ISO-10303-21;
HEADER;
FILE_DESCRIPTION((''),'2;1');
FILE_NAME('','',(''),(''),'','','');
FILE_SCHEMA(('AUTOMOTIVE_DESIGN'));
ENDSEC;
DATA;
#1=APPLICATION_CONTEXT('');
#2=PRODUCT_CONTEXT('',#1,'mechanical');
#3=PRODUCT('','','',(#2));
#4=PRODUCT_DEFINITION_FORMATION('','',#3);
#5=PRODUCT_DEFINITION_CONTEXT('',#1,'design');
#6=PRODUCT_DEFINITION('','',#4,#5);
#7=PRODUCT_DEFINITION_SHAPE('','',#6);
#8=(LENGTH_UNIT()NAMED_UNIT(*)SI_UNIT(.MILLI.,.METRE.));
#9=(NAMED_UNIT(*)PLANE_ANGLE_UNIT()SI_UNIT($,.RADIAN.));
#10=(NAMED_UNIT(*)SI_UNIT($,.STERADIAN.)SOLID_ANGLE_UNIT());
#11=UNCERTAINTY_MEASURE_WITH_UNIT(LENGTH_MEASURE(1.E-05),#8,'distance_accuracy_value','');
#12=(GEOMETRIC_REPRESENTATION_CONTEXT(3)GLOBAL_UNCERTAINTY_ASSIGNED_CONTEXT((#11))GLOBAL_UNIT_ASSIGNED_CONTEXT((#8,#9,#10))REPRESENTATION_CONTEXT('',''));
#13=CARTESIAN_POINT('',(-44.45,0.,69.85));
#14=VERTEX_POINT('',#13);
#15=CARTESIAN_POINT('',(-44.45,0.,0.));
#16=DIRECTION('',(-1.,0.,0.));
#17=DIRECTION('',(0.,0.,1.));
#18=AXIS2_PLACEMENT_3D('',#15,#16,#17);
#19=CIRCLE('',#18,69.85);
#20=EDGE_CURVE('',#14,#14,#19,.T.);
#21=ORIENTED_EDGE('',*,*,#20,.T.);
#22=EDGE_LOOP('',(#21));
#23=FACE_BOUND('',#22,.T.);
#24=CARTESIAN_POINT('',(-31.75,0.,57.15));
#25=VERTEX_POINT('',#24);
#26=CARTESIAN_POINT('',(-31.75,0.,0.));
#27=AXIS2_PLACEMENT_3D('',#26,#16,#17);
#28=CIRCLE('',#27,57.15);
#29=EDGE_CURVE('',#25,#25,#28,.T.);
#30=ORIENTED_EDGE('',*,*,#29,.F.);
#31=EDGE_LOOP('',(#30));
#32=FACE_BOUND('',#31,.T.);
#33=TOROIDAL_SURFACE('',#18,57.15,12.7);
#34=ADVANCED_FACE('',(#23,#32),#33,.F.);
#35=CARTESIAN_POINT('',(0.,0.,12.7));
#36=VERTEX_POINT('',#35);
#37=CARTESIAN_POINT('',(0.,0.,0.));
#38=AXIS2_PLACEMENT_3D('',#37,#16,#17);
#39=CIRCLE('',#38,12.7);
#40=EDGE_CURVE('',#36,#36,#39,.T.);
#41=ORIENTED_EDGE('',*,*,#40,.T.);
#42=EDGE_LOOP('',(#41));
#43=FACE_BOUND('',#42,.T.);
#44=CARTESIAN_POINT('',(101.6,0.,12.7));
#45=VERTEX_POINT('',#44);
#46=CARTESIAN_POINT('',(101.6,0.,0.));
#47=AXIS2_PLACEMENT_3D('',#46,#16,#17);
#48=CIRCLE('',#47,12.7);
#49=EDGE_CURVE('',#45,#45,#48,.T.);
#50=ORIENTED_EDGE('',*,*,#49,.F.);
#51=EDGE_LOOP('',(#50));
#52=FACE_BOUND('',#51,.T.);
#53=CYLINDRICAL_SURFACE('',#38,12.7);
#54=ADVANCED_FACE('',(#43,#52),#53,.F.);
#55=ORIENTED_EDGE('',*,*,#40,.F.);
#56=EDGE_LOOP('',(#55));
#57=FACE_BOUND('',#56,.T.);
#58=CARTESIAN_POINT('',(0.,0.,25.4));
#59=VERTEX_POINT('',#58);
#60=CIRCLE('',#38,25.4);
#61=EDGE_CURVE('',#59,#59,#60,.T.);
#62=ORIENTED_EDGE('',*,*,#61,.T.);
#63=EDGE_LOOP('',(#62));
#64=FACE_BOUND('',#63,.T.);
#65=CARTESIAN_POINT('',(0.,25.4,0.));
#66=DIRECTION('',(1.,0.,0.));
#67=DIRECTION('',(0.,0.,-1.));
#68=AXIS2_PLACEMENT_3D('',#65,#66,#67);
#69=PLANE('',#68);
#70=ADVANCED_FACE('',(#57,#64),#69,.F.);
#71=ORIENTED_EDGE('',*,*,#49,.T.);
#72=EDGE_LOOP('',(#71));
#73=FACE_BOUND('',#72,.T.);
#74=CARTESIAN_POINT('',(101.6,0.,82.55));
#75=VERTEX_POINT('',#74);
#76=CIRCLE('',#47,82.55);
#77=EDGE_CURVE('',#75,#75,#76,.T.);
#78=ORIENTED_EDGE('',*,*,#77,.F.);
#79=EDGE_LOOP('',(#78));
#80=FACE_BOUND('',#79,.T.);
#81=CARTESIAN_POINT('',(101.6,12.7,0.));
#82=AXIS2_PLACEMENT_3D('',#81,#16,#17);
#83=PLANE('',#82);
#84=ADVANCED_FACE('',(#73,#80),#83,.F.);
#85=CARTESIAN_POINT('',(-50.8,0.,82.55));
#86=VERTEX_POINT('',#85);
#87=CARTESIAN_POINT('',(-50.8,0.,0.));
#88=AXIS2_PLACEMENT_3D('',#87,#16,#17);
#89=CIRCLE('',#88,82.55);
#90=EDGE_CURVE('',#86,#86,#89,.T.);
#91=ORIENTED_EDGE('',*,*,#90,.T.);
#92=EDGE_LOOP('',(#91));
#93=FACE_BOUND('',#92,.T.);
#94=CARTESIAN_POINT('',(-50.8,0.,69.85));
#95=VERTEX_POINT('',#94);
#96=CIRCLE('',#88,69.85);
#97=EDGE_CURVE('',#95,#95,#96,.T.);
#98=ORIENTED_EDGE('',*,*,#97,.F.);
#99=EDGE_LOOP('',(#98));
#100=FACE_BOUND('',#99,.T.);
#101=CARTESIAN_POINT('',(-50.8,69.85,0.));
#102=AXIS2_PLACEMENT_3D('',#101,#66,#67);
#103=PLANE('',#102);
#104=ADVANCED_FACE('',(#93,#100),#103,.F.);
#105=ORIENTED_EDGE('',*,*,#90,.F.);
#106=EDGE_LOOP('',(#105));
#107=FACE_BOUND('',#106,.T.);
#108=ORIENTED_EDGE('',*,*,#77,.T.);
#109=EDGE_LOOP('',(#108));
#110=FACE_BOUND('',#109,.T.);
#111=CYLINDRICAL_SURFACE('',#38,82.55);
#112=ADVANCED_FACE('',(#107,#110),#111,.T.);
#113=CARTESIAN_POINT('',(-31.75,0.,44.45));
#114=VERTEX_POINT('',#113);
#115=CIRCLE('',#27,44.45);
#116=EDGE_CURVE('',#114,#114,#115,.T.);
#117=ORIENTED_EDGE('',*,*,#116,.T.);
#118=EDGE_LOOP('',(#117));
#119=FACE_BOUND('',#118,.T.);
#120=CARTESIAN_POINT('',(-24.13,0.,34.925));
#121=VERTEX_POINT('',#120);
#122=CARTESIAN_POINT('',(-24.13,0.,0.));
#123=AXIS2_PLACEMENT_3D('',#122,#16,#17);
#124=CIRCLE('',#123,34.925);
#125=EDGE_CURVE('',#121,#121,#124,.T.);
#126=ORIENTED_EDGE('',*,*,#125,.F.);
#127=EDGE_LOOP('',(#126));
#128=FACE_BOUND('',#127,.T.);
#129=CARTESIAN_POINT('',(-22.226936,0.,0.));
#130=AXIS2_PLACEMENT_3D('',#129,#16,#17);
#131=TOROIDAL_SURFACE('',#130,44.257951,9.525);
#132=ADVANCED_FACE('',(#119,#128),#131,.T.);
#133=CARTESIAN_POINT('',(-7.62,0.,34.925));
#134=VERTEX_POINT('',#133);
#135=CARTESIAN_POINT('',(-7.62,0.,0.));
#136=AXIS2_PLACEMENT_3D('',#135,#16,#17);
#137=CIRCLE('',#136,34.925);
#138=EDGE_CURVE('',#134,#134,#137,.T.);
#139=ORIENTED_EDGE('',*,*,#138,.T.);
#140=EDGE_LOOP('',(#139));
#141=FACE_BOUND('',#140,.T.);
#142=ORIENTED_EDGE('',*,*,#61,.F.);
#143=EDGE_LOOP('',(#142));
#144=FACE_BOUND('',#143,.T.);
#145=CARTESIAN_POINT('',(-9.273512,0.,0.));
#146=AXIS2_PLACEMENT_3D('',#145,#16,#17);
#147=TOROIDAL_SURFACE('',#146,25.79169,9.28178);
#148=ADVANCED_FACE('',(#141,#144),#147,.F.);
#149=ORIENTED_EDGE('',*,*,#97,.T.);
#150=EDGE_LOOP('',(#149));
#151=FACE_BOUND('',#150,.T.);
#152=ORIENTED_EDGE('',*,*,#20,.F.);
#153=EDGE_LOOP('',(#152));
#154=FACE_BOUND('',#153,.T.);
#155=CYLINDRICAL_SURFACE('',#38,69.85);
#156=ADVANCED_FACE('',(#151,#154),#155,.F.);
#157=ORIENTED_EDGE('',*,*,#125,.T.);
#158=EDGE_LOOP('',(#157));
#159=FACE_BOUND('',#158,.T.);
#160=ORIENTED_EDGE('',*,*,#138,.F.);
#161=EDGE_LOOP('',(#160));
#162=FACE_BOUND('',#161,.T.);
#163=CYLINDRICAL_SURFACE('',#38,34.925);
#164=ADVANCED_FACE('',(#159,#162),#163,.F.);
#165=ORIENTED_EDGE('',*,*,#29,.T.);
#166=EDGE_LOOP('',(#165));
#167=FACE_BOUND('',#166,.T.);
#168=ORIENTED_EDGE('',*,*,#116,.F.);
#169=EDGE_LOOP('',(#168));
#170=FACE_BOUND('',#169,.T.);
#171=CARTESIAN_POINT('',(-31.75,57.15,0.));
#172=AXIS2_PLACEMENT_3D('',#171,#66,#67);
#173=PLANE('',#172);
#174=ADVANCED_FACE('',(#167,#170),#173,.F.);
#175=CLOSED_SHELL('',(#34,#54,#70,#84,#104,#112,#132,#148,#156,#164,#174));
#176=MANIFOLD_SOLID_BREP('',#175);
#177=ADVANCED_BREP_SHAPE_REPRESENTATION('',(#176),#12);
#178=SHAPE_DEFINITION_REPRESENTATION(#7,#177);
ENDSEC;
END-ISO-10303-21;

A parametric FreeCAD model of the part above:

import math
import FreeCAD as App
import Part
import Sketcher

V = App.Vector
Q = App.Units.Quantity

doc = App.newDocument("Part")
body = doc.addObject("PartDesign::Body", "Body")

sketch1 = doc.addObject("Sketcher::SketchObject", "Sketch")
body.addObject(sketch1)
sketch1.AttachmentSupport = (doc.XY_Plane, [""])
sketch1.MapMode = "FlatFace"
sketch1.addGeometry([
    Part.LineSegment(V(-51, 83, 0), V(-51, 70, 0)),
    Part.LineSegment(V(-51, 70, 0), V(-44, 70, 0)),
    Part.ArcOfCircle(Part.Circle(V(-44, 57, 0), V(0, 0, 1), 13), math.radians(0), math.radians(90)),
    Part.LineSegment(V(-32, 57, 0), V(-32, 44, 0)),
    Part.ArcOfCircle(Part.Circle(V(-22, 44, 0), V(0, 0, 1), 10), math.radians(179), math.radians(258)),
    Part.LineSegment(V(-24, 35, 0), V(-8, 35, 0)),
    Part.ArcOfCircle(Part.Circle(V(-9, 26, 0), V(0, 0, 1), 9), math.radians(-2), math.radians(80)),
    Part.LineSegment(V(0, 25, 0), V(0, 13, 0)),
    Part.LineSegment(V(0, 13, 0), V(102, 13, 0)),
    Part.LineSegment(V(102, 13, 0), V(102, 83, 0)),
    Part.LineSegment(V(102, 83, 0), V(-51, 83, 0)),
], False)
sketch1.addConstraint([
    Sketcher.Constraint("Coincident", 0, 2, 1, 1),
    Sketcher.Constraint("Tangent", 1, 2, 2, 2),
    Sketcher.Constraint("Tangent", 2, 1, 3, 1),
    Sketcher.Constraint("Coincident", 3, 2, 4, 1),
    Sketcher.Constraint("Coincident", 4, 2, 5, 1),
    Sketcher.Constraint("Coincident", 5, 2, 6, 2),
    Sketcher.Constraint("Coincident", 6, 1, 7, 1),
    Sketcher.Constraint("Coincident", 7, 2, 8, 1),
    Sketcher.Constraint("Coincident", 8, 2, 9, 1),
    Sketcher.Constraint("Coincident", 9, 2, 10, 1),
    Sketcher.Constraint("Coincident", 10, 2, 0, 1),
    Sketcher.Constraint("Vertical", 0),
    Sketcher.Constraint("Horizontal", 1),
    Sketcher.Constraint("Vertical", 3),
    Sketcher.Constraint("Horizontal", 5),
    Sketcher.Constraint("Vertical", 7),
    Sketcher.Constraint("Horizontal", 8),
    Sketcher.Constraint("Vertical", 9),
    Sketcher.Constraint("Horizontal", 10),
    Sketcher.Constraint("PointOnObject", 6, 1, -2),
    Sketcher.Constraint("Equal", 0, 3),
    Sketcher.Constraint("Equal", 3, 7),
    Sketcher.Constraint("Radius", 2, Q("0.5 in")),
    Sketcher.Constraint("DistanceX", 8, 1, 8, 2, Q("4 in")),
    Sketcher.Constraint("DistanceX", 10, 2, 10, 1, Q("6 in")),
    Sketcher.Constraint("DistanceY", 0, 2, 0, 1, Q("0.5 in")),
    Sketcher.Constraint("DistanceY", -1, 1, 6, 1, Q("1 in")),
    Sketcher.Constraint("Radius", 4, Q("0.375 in")),
    Sketcher.Constraint("DistanceX", 1, 1, 1, 2, Q("0.25 in")),
    Sketcher.Constraint("DistanceX", 5, 1, 5, 2, Q("0.65 in")),
    Sketcher.Constraint("DistanceY", 9, 1, 9, 2, Q("2.75 in")),
    Sketcher.Constraint("DistanceX", 5, 2, -1, 1, Q("0.3 in")),
    Sketcher.Constraint("DistanceY", -1, 1, 4, 2, Q("1.375 in")),
    Sketcher.Constraint("Radius", 6, Q("9.28178 mm")),
])
revolution = doc.addObject("PartDesign::Revolution", "Revolution")
body.addObject(revolution)
revolution.Profile = sketch1
revolution.ReferenceAxis = (sketch1, ["H_Axis"])
revolution.Angle = 360

doc.recompute()
